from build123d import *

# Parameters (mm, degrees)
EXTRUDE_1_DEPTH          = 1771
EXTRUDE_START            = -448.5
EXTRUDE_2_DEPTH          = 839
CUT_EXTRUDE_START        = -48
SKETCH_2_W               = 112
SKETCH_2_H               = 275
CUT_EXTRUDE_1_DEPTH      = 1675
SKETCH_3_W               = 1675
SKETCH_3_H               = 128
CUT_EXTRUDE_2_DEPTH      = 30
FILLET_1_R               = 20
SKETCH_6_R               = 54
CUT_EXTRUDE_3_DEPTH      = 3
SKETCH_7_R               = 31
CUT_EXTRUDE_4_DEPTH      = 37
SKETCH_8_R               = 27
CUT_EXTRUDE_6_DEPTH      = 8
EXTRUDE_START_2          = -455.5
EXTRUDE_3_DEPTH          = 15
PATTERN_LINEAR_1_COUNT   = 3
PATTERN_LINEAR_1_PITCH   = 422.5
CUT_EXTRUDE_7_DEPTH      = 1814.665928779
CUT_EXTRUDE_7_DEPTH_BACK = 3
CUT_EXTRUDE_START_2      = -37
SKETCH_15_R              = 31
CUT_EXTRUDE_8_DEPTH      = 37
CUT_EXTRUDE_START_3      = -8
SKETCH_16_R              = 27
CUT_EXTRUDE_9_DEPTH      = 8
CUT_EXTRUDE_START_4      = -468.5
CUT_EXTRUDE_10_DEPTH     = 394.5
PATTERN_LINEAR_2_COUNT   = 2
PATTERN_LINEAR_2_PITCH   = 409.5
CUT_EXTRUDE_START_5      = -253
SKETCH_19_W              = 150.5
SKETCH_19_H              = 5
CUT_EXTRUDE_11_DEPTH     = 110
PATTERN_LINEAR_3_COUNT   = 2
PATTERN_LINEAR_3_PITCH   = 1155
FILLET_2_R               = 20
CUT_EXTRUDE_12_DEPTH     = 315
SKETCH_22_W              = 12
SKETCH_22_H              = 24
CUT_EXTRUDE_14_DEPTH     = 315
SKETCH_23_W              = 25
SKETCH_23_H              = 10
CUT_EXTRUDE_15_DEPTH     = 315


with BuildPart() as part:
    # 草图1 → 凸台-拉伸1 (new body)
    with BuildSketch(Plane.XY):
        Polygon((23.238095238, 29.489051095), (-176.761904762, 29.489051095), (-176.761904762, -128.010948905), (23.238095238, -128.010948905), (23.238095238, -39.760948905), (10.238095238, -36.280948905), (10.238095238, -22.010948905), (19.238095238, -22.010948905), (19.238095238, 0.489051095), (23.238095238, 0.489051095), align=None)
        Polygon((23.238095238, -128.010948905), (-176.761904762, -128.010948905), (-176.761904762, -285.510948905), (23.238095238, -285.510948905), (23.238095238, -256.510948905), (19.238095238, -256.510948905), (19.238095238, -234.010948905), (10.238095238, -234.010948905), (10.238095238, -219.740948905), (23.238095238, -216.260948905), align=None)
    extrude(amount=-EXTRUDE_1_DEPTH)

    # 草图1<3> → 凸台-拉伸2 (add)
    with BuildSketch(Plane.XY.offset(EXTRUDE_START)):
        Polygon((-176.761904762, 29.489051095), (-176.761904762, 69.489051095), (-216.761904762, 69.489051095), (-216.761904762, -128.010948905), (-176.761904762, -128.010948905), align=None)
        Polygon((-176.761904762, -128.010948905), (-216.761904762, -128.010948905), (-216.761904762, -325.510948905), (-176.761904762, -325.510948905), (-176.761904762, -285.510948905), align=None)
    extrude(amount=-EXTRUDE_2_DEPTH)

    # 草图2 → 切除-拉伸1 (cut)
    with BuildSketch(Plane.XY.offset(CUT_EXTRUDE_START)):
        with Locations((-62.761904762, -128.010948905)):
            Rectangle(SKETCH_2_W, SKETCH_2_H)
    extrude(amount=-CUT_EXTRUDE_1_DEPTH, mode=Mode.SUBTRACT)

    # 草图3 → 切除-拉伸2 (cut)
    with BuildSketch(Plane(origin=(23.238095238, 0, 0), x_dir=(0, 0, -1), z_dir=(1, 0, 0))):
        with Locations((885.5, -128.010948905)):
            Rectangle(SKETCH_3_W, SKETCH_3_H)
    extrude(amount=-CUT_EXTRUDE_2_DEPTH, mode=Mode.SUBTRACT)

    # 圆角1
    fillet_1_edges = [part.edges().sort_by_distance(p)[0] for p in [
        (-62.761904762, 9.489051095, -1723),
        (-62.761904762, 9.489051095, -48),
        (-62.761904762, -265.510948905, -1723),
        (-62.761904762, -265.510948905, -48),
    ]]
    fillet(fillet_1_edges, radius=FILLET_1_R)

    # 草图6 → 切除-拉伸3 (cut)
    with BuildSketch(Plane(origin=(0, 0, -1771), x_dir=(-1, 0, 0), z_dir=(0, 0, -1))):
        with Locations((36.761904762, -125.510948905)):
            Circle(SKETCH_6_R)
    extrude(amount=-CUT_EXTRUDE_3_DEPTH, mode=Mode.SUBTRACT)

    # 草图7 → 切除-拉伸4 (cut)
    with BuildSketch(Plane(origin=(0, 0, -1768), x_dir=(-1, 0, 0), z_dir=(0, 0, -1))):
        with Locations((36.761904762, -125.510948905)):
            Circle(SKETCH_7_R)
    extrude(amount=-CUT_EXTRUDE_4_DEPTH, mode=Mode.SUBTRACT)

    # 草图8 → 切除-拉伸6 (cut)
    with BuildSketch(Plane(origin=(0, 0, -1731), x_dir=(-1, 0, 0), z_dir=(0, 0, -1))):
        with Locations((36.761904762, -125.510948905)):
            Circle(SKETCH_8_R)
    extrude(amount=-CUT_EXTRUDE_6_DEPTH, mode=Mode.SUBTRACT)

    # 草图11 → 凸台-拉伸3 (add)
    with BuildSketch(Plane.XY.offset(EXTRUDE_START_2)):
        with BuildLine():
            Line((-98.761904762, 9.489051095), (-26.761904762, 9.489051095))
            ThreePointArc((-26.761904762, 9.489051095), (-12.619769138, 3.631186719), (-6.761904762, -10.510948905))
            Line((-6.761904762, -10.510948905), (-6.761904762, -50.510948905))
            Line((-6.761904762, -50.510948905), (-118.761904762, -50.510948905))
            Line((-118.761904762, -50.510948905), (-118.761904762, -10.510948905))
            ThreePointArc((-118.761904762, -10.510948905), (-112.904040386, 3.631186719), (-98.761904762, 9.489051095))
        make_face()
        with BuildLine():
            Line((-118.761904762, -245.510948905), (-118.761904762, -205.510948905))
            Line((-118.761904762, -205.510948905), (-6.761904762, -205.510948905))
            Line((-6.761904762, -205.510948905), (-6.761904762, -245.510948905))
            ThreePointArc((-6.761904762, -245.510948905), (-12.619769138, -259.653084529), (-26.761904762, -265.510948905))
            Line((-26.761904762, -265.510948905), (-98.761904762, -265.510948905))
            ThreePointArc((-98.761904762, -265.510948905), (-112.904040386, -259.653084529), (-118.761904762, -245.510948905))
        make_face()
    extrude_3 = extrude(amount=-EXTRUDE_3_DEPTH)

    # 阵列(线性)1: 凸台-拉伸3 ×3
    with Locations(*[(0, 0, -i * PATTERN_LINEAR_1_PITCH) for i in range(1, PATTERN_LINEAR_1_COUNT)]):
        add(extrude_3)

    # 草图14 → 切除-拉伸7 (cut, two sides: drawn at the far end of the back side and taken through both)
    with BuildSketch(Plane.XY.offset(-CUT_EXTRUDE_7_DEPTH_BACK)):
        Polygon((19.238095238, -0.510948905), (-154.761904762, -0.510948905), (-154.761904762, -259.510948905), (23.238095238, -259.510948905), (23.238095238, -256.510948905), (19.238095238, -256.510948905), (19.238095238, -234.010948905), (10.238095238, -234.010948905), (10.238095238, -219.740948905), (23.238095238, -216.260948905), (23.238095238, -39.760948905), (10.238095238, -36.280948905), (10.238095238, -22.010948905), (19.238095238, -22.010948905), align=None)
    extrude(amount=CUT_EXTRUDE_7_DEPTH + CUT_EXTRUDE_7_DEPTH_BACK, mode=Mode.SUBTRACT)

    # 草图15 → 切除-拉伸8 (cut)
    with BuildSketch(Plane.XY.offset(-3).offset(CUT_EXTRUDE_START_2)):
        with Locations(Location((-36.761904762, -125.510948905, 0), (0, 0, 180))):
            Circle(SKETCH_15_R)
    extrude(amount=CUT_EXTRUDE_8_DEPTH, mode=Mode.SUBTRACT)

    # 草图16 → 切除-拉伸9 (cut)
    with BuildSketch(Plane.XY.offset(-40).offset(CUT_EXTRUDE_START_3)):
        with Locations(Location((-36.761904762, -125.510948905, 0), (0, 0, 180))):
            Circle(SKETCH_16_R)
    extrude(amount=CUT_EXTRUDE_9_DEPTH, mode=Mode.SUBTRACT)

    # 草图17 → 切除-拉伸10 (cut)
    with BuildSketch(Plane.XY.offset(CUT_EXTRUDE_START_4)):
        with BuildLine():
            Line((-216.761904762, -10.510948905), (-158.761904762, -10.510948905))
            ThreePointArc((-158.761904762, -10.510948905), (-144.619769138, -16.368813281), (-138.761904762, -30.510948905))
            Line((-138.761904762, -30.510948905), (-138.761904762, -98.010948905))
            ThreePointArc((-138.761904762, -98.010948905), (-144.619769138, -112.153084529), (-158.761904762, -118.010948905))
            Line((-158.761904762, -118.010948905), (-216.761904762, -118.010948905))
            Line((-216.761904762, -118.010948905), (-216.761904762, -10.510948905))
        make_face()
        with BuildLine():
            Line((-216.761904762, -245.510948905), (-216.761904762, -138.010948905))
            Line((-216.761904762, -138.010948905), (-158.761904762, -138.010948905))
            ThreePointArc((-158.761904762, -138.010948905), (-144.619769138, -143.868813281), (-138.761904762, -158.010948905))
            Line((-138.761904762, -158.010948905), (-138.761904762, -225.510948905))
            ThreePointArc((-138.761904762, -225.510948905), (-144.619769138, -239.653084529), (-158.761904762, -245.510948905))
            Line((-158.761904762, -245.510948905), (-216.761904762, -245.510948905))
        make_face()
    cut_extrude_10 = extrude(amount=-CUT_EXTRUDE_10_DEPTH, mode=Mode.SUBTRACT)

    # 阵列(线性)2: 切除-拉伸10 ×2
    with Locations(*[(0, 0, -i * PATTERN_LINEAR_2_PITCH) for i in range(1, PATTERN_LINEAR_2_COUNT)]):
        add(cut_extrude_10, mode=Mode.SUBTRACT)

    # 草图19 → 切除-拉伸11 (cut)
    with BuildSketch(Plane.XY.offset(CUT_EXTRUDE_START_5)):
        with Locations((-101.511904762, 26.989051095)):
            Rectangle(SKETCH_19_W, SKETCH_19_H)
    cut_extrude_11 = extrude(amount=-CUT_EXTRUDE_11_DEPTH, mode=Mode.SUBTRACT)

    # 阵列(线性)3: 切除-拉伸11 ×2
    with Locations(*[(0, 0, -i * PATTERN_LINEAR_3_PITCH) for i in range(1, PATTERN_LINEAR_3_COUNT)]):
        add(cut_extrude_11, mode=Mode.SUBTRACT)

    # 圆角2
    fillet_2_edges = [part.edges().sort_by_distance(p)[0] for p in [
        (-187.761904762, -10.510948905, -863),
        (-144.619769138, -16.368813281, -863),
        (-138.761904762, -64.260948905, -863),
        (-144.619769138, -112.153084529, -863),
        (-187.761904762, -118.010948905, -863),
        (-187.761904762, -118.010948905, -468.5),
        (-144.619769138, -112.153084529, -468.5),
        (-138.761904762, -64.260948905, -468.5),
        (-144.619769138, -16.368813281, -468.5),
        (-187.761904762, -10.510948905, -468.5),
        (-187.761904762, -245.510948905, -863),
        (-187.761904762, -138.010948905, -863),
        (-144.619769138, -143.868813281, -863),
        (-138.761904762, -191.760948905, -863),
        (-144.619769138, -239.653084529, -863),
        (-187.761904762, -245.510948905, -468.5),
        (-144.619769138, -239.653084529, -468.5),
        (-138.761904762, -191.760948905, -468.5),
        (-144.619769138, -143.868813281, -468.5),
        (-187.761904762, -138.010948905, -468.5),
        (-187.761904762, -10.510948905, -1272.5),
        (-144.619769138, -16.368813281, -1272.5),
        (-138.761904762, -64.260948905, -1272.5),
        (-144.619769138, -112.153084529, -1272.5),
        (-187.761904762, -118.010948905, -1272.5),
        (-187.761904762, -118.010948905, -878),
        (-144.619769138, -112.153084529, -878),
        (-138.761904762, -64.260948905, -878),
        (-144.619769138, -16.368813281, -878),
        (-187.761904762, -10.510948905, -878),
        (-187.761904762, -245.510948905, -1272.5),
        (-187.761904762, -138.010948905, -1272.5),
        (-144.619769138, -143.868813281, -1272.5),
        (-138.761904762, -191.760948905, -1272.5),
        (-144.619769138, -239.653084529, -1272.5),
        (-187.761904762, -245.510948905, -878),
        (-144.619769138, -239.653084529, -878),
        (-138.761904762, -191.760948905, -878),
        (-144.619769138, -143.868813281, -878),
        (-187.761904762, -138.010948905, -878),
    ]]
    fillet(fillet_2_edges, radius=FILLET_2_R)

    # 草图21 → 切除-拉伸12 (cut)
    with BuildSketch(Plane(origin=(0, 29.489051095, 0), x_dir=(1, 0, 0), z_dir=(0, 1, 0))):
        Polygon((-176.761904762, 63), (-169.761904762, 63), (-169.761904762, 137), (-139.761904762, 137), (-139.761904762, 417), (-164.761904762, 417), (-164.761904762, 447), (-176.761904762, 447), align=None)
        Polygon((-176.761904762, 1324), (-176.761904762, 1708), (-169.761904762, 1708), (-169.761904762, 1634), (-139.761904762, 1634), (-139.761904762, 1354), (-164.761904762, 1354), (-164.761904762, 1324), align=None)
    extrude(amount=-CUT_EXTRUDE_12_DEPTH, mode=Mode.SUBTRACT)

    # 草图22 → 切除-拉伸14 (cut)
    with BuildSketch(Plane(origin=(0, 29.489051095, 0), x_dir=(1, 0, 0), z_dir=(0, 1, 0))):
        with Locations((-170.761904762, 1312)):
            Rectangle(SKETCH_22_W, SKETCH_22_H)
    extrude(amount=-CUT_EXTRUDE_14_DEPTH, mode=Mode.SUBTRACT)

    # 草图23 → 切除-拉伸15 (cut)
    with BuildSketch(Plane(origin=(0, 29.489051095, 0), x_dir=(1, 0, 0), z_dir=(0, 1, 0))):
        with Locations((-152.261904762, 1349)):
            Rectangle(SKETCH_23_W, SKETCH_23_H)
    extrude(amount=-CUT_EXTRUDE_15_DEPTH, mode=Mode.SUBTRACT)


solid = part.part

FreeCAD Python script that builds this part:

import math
import FreeCAD as App
import Part
import Sketcher

V = App.Vector


def edges_at(feature, points):
    """Names of the edges that pass closest to the given points."""
    edges = feature.Shape.Edges
    near = lambda p: min(range(len(edges)), key=lambda i: edges[i].distToShape(Part.Vertex(*p))[0])
    return sorted({f"Edge{near(p) + 1}" for p in points})


def add_polygon(sketch, points):
    """Adds a closed chain of lines whose ends are joined by coincident constraints."""
    first, n = sketch.GeometryCount, len(points)
    for a, b in zip(points, points[1:] + points[:1]):
        sketch.addGeometry(Part.LineSegment(App.Vector(*a, 0), App.Vector(*b, 0)), False)
    for i in range(n):
        sketch.addConstraint(Sketcher.Constraint("Coincident", first + i, 2, first + (i + 1) % n, 1))

doc = App.newDocument("Part")
params = doc.addObject("Spreadsheet::Sheet", "Params")
for row, (alias, value) in enumerate([
    ("sketch1_width", "200 mm"),
    ("sketch1_width2", "4 mm"),
    ("sketch1_width3", "9 mm"),
    ("sketch1_height", "315 mm"),
    ("sketch1_height2", "29 mm"),
    ("pad1_length", "1771 mm"),
    ("sketch2_width", "40 mm"),
    ("sketch2_height", "395 mm"),
    ("pad2_length", "839 mm"),
    ("sketch3_width", "112 mm"),
    ("sketch3_height", "275 mm"),
    ("pocket1_length", "1675 mm"),
    ("sketch4_width", "128 mm"),
    ("sketch4_height", "1675 mm"),
    ("pocket2_length", "30 mm"),
    ("fillet_radius", "20 mm"),
    ("sketch5_diameter", "108 mm"),
    ("pocket3_length", "3 mm"),
    ("sketch6_diameter", "62 mm"),
    ("pocket4_length", "37 mm"),
    ("sketch7_diameter", "54 mm"),
    ("pocket5_length", "8 mm"),
    ("sketch8_radius", "20 mm"),
    ("sketch8_width", "72 mm"),
    ("sketch8_height", "40 mm"),
    ("pad3_length", "15 mm"),
    ("linearpattern_pitch", "422.5 mm"),
    ("sketch9_width", "174 mm"),
    ("sketch9_width2", "178 mm"),
    ("sketch9_width3", "9 mm"),
    ("sketch9_height", "259 mm"),
    ("sketch9_height2", "3 mm"),
    ("pocket6_length", "1814.665929 mm"),
    ("pocket6_length2", "3 mm"),
    ("sketch10_diameter", "62 mm"),
    ("pocket7_length", "37 mm"),
    ("sketch11_diameter", "54 mm"),
    ("pocket8_length", "8 mm"),
    ("sketch12_radius", "20 mm"),
    ("sketch12_width", "58 mm"),
    ("sketch12_height", "107.5 mm"),
    ("pocket9_length", "394.5 mm"),
    ("linearpattern2_pitch", "409.5 mm"),
    ("sketch13_height", "5 mm"),
    ("sketch13_width", "150.5 mm"),
    ("pocket10_length", "110 mm"),
    ("linearpattern3_pitch", "1155 mm"),
    ("fillet2_radius", "20 mm"),
    ("sketch14_width", "7 mm"),
    ("sketch14_width2", "30 mm"),
    ("sketch14_width3", "25 mm"),
    ("sketch14_height", "74 mm"),
    ("sketch14_height2", "280 mm"),
    ("pocket11_length", "315 mm"),
    ("sketch15_width", "12 mm"),
    ("sketch15_height", "24 mm"),
    ("pocket12_length", "315 mm"),
    ("sketch16_width", "25 mm"),
    ("sketch16_height", "10 mm"),
    ("pocket13_length", "315 mm"),
], start=1):
    params.set(f"A{row}", alias)
    params.set(f"B{row}", "=" + value)
    params.setAlias(f"B{row}", alias)

body = doc.addObject("PartDesign::Body", "Body")

# Sketch on XY plane
sketch1 = body.newObject("Sketcher::SketchObject", "Sketch")
sketch1.AttachmentSupport = (doc.getObject("XY_Plane"), [""])
sketch1.MapMode = "FlatFace"
add_polygon(sketch1, [(23.2, 29.5), (-176.8, 29.5), (-176.8, -285.5), (23.2, -285.5), (23.2, -256.5), (19.2, -256.5), (19.2, -234), (10.2, -234), (10.2, -219.7), (23.2, -216.3), (23.2, -39.8), (10.2, -36.3), (10.2, -22), (19.2, -22), (19.2, 0.5), (23.2, 0.5)])  # lines 0-15
sketch1.addConstraint([
    Sketcher.Constraint("Horizontal", 0),
    Sketcher.Constraint("Vertical", 1),
    Sketcher.Constraint("Horizontal", 2),
    Sketcher.Constraint("Vertical", 3),
    Sketcher.Constraint("Horizontal", 4),
    Sketcher.Constraint("Vertical", 5),
    Sketcher.Constraint("Horizontal", 6),
    Sketcher.Constraint("Vertical", 7),
    Sketcher.Constraint("Vertical", 9),
    Sketcher.Constraint("Vertical", 11),
    Sketcher.Constraint("Horizontal", 12),
    Sketcher.Constraint("Vertical", 13),
    Sketcher.Constraint("Horizontal", 14),
    Sketcher.Constraint("Vertical", 15),
    Sketcher.Constraint("Vertical", 3, 2, 8, 2),
    Sketcher.Constraint("Vertical", 7, 2, 10, 2),
    Sketcher.Constraint("Vertical", 5, 2, 12, 2),
    Sketcher.Constraint("Vertical", 9, 2, 14, 2),
    Sketcher.Constraint("Equal", 7, 11),
    Sketcher.Constraint("Equal", 5, 13),
    Sketcher.Constraint("Equal", 3, 15),
    Sketcher.Constraint("Equal", 8, 10),
    Sketcher.Constraint("DistanceX", 0, 2, 0, 1, 200.0),
    Sketcher.Constraint("DistanceX", 4, 2, 4, 1, 4.0),
    Sketcher.Constraint("DistanceX", 6, 2, 6, 1, 9.0),
    Sketcher.Constraint("DistanceY", 1, 2, 1, 1, 315.0),
    Sketcher.Constraint("DistanceY", 3, 1, 3, 2, 29.0),
    Sketcher.Constraint("DistanceY", 5, 1, 5, 2, 22.5),
    Sketcher.Constraint("DistanceY", 9, 1, 9, 2, 176.5),
    Sketcher.Constraint("DistanceY", 7, 1, 7, 2, 14.27),
    Sketcher.Constraint("DistanceY", -1, 1, 0, 2, 29.489051),
    Sketcher.Constraint("DistanceX", 0, 2, -1, 1, 176.761905),
])
sketch1.setExpression("Constraints[38]", "Params.sketch1_width")
sketch1.setExpression("Constraints[39]", "Params.sketch1_width2")
sketch1.setExpression("Constraints[40]", "Params.sketch1_width3")
sketch1.setExpression("Constraints[41]", "Params.sketch1_height")
sketch1.setExpression("Constraints[42]", "Params.sketch1_height2")
pad1 = body.newObject("PartDesign::Pad", "Pad")
pad1.Profile = sketch1
pad1.setExpression("Length", "Params.pad1_length")
pad1.Reversed = True

# Sketch on XY plane
sketch2 = body.newObject("Sketcher::SketchObject", "Sketch001")
sketch2.AttachmentSupport = (doc.getObject("XY_Plane"), [""])
sketch2.MapMode = "FlatFace"
sketch2.AttachmentOffset = App.Placement(V(0, 0, -448.5), App.Rotation())
add_polygon(sketch2, [(-177, 69), (-217, 69), (-217, -326), (-177, -326)])  # lines 0-3
sketch2.addConstraint([
    Sketcher.Constraint("Horizontal", 0),
    Sketcher.Constraint("Vertical", 1),
    Sketcher.Constraint("Horizontal", 2),
    Sketcher.Constraint("Vertical", 3),
    Sketcher.Constraint("DistanceX", 0, 2, 0, 1, 40.0),
    Sketcher.Constraint("DistanceY", 1, 2, 1, 1, 395.0),
    Sketcher.Constraint("DistanceY", -1, 1, 0, 2, 69.489051),
    Sketcher.Constraint("DistanceX", 0, 2, -1, 1, 216.761905),
])
sketch2.setExpression("Constraints[8]", "Params.sketch2_width")
sketch2.setExpression("Constraints[9]", "Params.sketch2_height")
pad2 = body.newObject("PartDesign::Pad", "Pad001")
pad2.Profile = sketch2
pad2.setExpression("Length", "Params.pad2_length")
pad2.Reversed = True

# Sketch on XY plane
sketch3 = body.newObject("Sketcher::SketchObject", "Sketch002")
sketch3.AttachmentSupport = (doc.getObject("XY_Plane"), [""])
sketch3.MapMode = "FlatFace"
sketch3.AttachmentOffset = App.Placement(V(0, 0, -48), App.Rotation())
add_polygon(sketch3, [(-119, 9), (-119, -266), (-7, -266), (-7, 9)])  # lines 0-3
sketch3.addConstraint([
    Sketcher.Constraint("Vertical", 0),
    Sketcher.Constraint("Horizontal", 1),
    Sketcher.Constraint("Vertical", 2),
    Sketcher.Constraint("Horizontal", 3),
    Sketcher.Constraint("DistanceX", 1, 1, 1, 2, 112.0),
    Sketcher.Constraint("DistanceY", 0, 2, 0, 1, 275.0),
    Sketcher.Constraint("DistanceY", 0, 2, -1, 1, 265.510949),
    Sketcher.Constraint("DistanceX", 0, 2, -1, 1, 118.761905),
])
sketch3.setExpression("Constraints[8]", "Params.sketch3_width")
sketch3.setExpression("Constraints[9]", "Params.sketch3_height")
pocket1 = body.newObject("PartDesign::Pocket", "Pocket")
pocket1.Profile = sketch3
pocket1.setExpression("Length", "Params.pocket1_length")

# Sketch on YZ plane
sketch4 = body.newObject("Sketcher::SketchObject", "Sketch003")
sketch4.AttachmentSupport = (doc.getObject("YZ_Plane"), [""])
sketch4.MapMode = "FlatFace"
sketch4.AttachmentOffset = App.Placement(V(0, 0, 23.238095), App.Rotation())
add_polygon(sketch4, [(-64, -48), (-192, -48), (-192, -1723), (-64, -1723)])  # lines 0-3
sketch4.addConstraint([
    Sketcher.Constraint("Horizontal", 0),
    Sketcher.Constraint("Vertical", 1),
    Sketcher.Constraint("Horizontal", 2),
    Sketcher.Constraint("Vertical", 3),
    Sketcher.Constraint("DistanceX", 0, 2, 0, 1, 128.0),
    Sketcher.Constraint("DistanceY", 1, 2, 1, 1, 1675.0),
    Sketcher.Constraint("DistanceY", 0, 2, -1, 1, 48.0),
    Sketcher.Constraint("DistanceX", 0, 2, -1, 1, 192.010949),
])
sketch4.setExpression("Constraints[8]", "Params.sketch4_width")
sketch4.setExpression("Constraints[9]", "Params.sketch4_height")
pocket2 = body.newObject("PartDesign::Pocket", "Pocket001")
pocket2.Profile = sketch4
pocket2.setExpression("Length", "Params.pocket2_length")
doc.recompute()

fillet = body.newObject("PartDesign::Fillet", "Fillet")
fillet.Base = (pocket2, edges_at(pocket2, [
    (-62.762, 9.489, -1723),
    (-62.762, 9.489, -48),
    (-62.762, -265.511, -1723),
    (-62.762, -265.511, -48),
]))
fillet.setExpression("Radius", "Params.fillet_radius")

# Sketch on XY plane
sketch5 = body.newObject("Sketcher::SketchObject", "Sketch004")
sketch5.AttachmentSupport = (doc.getObject("XY_Plane"), [""])
sketch5.MapMode = "FlatFace"
sketch5.AttachmentOffset = App.Placement(V(0, 0, -1771), App.Rotation())
sketch5.addGeometry(Part.Circle(V(-37, -126, 0), V(0, 0, 1), 54), False)
sketch5.addConstraint([
    Sketcher.Constraint("Diameter", 0, 108.0),
    Sketcher.Constraint("DistanceY", 0, 3, -1, 1, 125.510949),
    Sketcher.Constraint("DistanceX", 0, 3, -1, 1, 36.761905),
])
sketch5.setExpression("Constraints[0]", "Params.sketch5_diameter")
pocket3 = body.newObject("PartDesign::Pocket", "Pocket002")
pocket3.Profile = sketch5
pocket3.setExpression("Length", "Params.pocket3_length")
pocket3.Reversed = True

# Sketch on XY plane
sketch6 = body.newObject("Sketcher::SketchObject", "Sketch005")
sketch6.AttachmentSupport = (doc.getObject("XY_Plane"), [""])
sketch6.MapMode = "FlatFace"
sketch6.AttachmentOffset = App.Placement(V(0, 0, -1768), App.Rotation())
sketch6.addGeometry(Part.Circle(V(-37, -126, 0), V(0, 0, 1), 31), False)
sketch6.addConstraint([
    Sketcher.Constraint("Diameter", 0, 62.0),
    Sketcher.Constraint("DistanceY", 0, 3, -1, 1, 125.510949),
    Sketcher.Constraint("DistanceX", 0, 3, -1, 1, 36.761905),
])
sketch6.setExpression("Constraints[0]", "Params.sketch6_diameter")
pocket4 = body.newObject("PartDesign::Pocket", "Pocket003")
pocket4.Profile = sketch6
pocket4.setExpression("Length", "Params.pocket4_length")
pocket4.Reversed = True

# Sketch on XY plane
sketch7 = body.newObject("Sketcher::SketchObject", "Sketch006")
sketch7.AttachmentSupport = (doc.getObject("XY_Plane"), [""])
sketch7.MapMode = "FlatFace"
sketch7.AttachmentOffset = App.Placement(V(0, 0, -1731), App.Rotation())
sketch7.addGeometry(Part.Circle(V(-37, -126, 0), V(0, 0, 1), 27), False)
sketch7.addConstraint([
    Sketcher.Constraint("Diameter", 0, 54.0),
    Sketcher.Constraint("DistanceY", 0, 3, -1, 1, 125.510949),
    Sketcher.Constraint("DistanceX", 0, 3, -1, 1, 36.761905),
])
sketch7.setExpression("Constraints[0]", "Params.sketch7_diameter")
pocket5 = body.newObject("PartDesign::Pocket", "Pocket004")
pocket5.Profile = sketch7
pocket5.setExpression("Length", "Params.pocket5_length")
pocket5.Reversed = True

# Sketch on XY plane
sketch8 = body.newObject("Sketcher::SketchObject", "Sketch007")
sketch8.AttachmentSupport = (doc.getObject("XY_Plane"), [""])
sketch8.MapMode = "FlatFace"
sketch8.AttachmentOffset = App.Placement(V(0, 0, -455.5), App.Rotation())
sketch8.addGeometry([
    Part.LineSegment(V(-27, 9, 0), V(-99, 9, 0)),  # 0
    Part.ArcOfCircle(Part.Circle(V(-99, -11, 0), V(0, 0, 1), 20), math.radians(90), math.radians(180)),  # 1
    Part.LineSegment(V(-119, -11, 0), V(-119, -51, 0)),  # 2
    Part.LineSegment(V(-119, -51, 0), V(-7, -51, 0)),  # 3
    Part.LineSegment(V(-7, -51, 0), V(-7, -11, 0)),  # 4
    Part.ArcOfCircle(Part.Circle(V(-27, -11, 0), V(0, 0, 1), 20), math.radians(0), math.radians(90)),  # 5
    Part.LineSegment(V(-119, -206, 0), V(-119, -246, 0)),  # 6
    Part.ArcOfCircle(Part.Circle(V(-99, -246, 0), V(0, 0, 1), 20), math.radians(180), math.radians(270)),  # 7
    Part.LineSegment(V(-99, -266, 0), V(-27, -266, 0)),  # 8
    Part.ArcOfCircle(Part.Circle(V(-27, -246, 0), V(0, 0, 1), 20), math.radians(-90), math.radians(0)),  # 9
    Part.LineSegment(V(-7, -246, 0), V(-7, -206, 0)),  # 10
    Part.LineSegment(V(-7, -206, 0), V(-119, -206, 0)),  # 11
], False)
sketch8.addConstraint([
    Sketcher.Constraint("Tangent", 0, 2, 1, 1),
    Sketcher.Constraint("Tangent", 1, 2, 2, 1),
    Sketcher.Constraint("Coincident", 2, 2, 3, 1),
    Sketcher.Constraint("Coincident", 3, 2, 4, 1),
    Sketcher.Constraint("Tangent", 4, 2, 5, 1),
    Sketcher.Constraint("Tangent", 5, 2, 0, 1),
    Sketcher.Constraint("Tangent", 6, 2, 7, 1),
    Sketcher.Constraint("Tangent", 7, 2, 8, 1),
    Sketcher.Constraint("Tangent", 8, 2, 9, 1),
    Sketcher.Constraint("Tangent", 9, 2, 10, 1),
    Sketcher.Constraint("Coincident", 10, 2, 11, 1),
    Sketcher.Constraint("Coincident", 11, 2, 6, 1),
    Sketcher.Constraint("Horizontal", 0),
    Sketcher.Constraint("Vertical", 2),
    Sketcher.Constraint("Horizontal", 3),
    Sketcher.Constraint("Vertical", 4),
    Sketcher.Constraint("Vertical", 6),
    Sketcher.Constraint("Horizontal", 8),
    Sketcher.Constraint("Vertical", 10),
    Sketcher.Constraint("Horizontal", 11),
    Sketcher.Constraint("Equal", 1, 5),
    Sketcher.Constraint("Equal", 5, 7),
    Sketcher.Constraint("Equal", 7, 9),
    Sketcher.Constraint("Vertical", 1, 3, 7, 3),
    Sketcher.Constraint("Vertical", 5, 3, 9, 3),
    Sketcher.Constraint("Equal", 4, 6),
    Sketcher.Constraint("Radius", 1, 20.0),
    Sketcher.Constraint("DistanceX", 0, 2, 0, 1, 72.0),
    Sketcher.Constraint("DistanceY", 2, 2, 2, 1, 40.0),
    Sketcher.Constraint("DistanceY", 7, 3, 1, 3, 235.0),
    Sketcher.Constraint("DistanceY", 1, 3, -1, 1, 10.510949),
    Sketcher.Constraint("DistanceX", 1, 3, -1, 1, 98.761905),
])
sketch8.setExpression("Constraints[26]", "Params.sketch8_radius")
sketch8.setExpression("Constraints[27]", "Params.sketch8_width")
sketch8.setExpression("Constraints[28]", "Params.sketch8_height")
pad3 = body.newObject("PartDesign::Pad", "Pad002")
pad3.Profile = sketch8
pad3.setExpression("Length", "Params.pad3_length")
pad3.Reversed = True
doc.recompute()

linearpattern = body.newObject("PartDesign::LinearPattern", "LinearPattern")
linearpattern.Originals = [pad3]
linearpattern.Direction = (doc.getObject("Z_Axis"), [""])
linearpattern.Mode = "offset"
linearpattern.setExpression("Offset", "Params.linearpattern_pitch")
linearpattern.Occurrences = 3
linearpattern.Reversed = True
body.Tip = linearpattern

# Sketch on XY plane
sketch9 = body.newObject("Sketcher::SketchObject", "Sketch008")
sketch9.AttachmentSupport = (doc.getObject("XY_Plane"), [""])
sketch9.MapMode = "FlatFace"
add_polygon(sketch9, [(19.2, -0.5), (-154.8, -0.5), (-154.8, -259.5), (23.2, -259.5), (23.2, -256.5), (19.2, -256.5), (19.2, -234), (10.2, -234), (10.2, -219.7), (23.2, -216.3), (23.2, -39.8), (10.2, -36.3), (10.2, -22), (19.2, -22)])  # lines 0-13
sketch9.addConstraint([
    Sketcher.Constraint("Horizontal", 0),
    Sketcher.Constraint("Vertical", 1),
    Sketcher.Constraint("Horizontal", 2),
    Sketcher.Constraint("Vertical", 3),
    Sketcher.Constraint("Horizontal", 4),
    Sketcher.Constraint("Vertical", 5),
    Sketcher.Constraint("Horizontal", 6),
    Sketcher.Constraint("Vertical", 7),
    Sketcher.Constraint("Vertical", 9),
    Sketcher.Constraint("Vertical", 11),
    Sketcher.Constraint("Horizontal", 12),
    Sketcher.Constraint("Vertical", 13),
    Sketcher.Constraint("Vertical", 3, 2, 8, 2),
    Sketcher.Constraint("Vertical", 7, 2, 10, 2),
    Sketcher.Constraint("Vertical", 5, 2, 12, 2),
    Sketcher.Constraint("Equal", 7, 11),
    Sketcher.Constraint("Equal", 8, 10),
    Sketcher.Constraint("DistanceX", 0, 2, 0, 1, 174.0),
    Sketcher.Constraint("DistanceX", 2, 1, 2, 2, 178.0),
    Sketcher.Constraint("DistanceX", 6, 2, 6, 1, 9.0),
    Sketcher.Constraint("DistanceY", 1, 2, 1, 1, 259.0),
    Sketcher.Constraint("DistanceY", 3, 1, 3, 2, 3.0),
    Sketcher.Constraint("DistanceY", 5, 1, 5, 2, 22.5),
    Sketcher.Constraint("DistanceY", 9, 1, 9, 2, 176.5),
    Sketcher.Constraint("DistanceY", 13, 1, 13, 2, 21.5),
    Sketcher.Constraint("DistanceY", 7, 1, 7, 2, 14.27),
    Sketcher.Constraint("DistanceY", 0, 2, -1, 1, 0.510949),
    Sketcher.Constraint("DistanceX", 0, 2, -1, 1, 154.761905),
])
sketch9.setExpression("Constraints[31]", "Params.sketch9_width")
sketch9.setExpression("Constraints[32]", "Params.sketch9_width2")
sketch9.setExpression("Constraints[33]", "Params.sketch9_width3")
sketch9.setExpression("Constraints[34]", "Params.sketch9_height")
sketch9.setExpression("Constraints[35]", "Params.sketch9_height2")
pocket6 = body.newObject("PartDesign::Pocket", "Pocket005")
pocket6.Profile = sketch9
pocket6.Type = "TwoLengths"
pocket6.setExpression("Length", "Params.pocket6_length")
pocket6.setExpression("Length2", "Params.pocket6_length2")
pocket6.Reversed = True

# Sketch on XY plane
sketch10 = body.newObject("Sketcher::SketchObject", "Sketch009")
sketch10.AttachmentSupport = (doc.getObject("XY_Plane"), [""])
sketch10.MapMode = "FlatFace"
sketch10.AttachmentOffset = App.Placement(V(0, 0, -40), App.Rotation())
sketch10.addGeometry(Part.Circle(V(-37, -126, 0), V(0, 0, 1), 31), False)
sketch10.addConstraint([
    Sketcher.Constraint("Diameter", 0, 62.0),
    Sketcher.Constraint("DistanceY", 0, 3, -1, 1, 125.510949),
    Sketcher.Constraint("DistanceX", 0, 3, -1, 1, 36.761905),
])
sketch10.setExpression("Constraints[0]", "Params.sketch10_diameter")
pocket7 = body.newObject("PartDesign::Pocket", "Pocket006")
pocket7.Profile = sketch10
pocket7.setExpression("Length", "Params.pocket7_length")
pocket7.Reversed = True

# Sketch on XY plane
sketch11 = body.newObject("Sketcher::SketchObject", "Sketch010")
sketch11.AttachmentSupport = (doc.getObject("XY_Plane"), [""])
sketch11.MapMode = "FlatFace"
sketch11.AttachmentOffset = App.Placement(V(0, 0, -48), App.Rotation())
sketch11.addGeometry(Part.Circle(V(-37, -126, 0), V(0, 0, 1), 27), False)
sketch11.addConstraint([
    Sketcher.Constraint("Diameter", 0, 54.0),
    Sketcher.Constraint("DistanceY", 0, 3, -1, 1, 125.510949),
    Sketcher.Constraint("DistanceX", 0, 3, -1, 1, 36.761905),
])
sketch11.setExpression("Constraints[0]", "Params.sketch11_diameter")
pocket8 = body.newObject("PartDesign::Pocket", "Pocket007")
pocket8.Profile = sketch11
pocket8.setExpression("Length", "Params.pocket8_length")
pocket8.Reversed = True

# Sketch on XY plane
sketch12 = body.newObject("Sketcher::SketchObject", "Sketch011")
sketch12.AttachmentSupport = (doc.getObject("XY_Plane"), [""])
sketch12.MapMode = "FlatFace"
sketch12.AttachmentOffset = App.Placement(V(0, 0, -468.5), App.Rotation())
sketch12.addGeometry([
    Part.LineSegment(V(-159, -11, 0), V(-217, -11, 0)),  # 0
    Part.LineSegment(V(-217, -11, 0), V(-217, -118, 0)),  # 1
    Part.LineSegment(V(-217, -118, 0), V(-159, -118, 0)),  # 2
    Part.ArcOfCircle(Part.Circle(V(-159, -98, 0), V(0, 0, 1), 20), math.radians(-90), math.radians(0)),  # 3
    Part.LineSegment(V(-139, -98, 0), V(-139, -31, 0)),  # 4
    Part.ArcOfCircle(Part.Circle(V(-159, -31, 0), V(0, 0, 1), 20), math.radians(0), math.radians(90)),  # 5
    Part.LineSegment(V(-217, -138, 0), V(-217, -246, 0)),  # 6
    Part.LineSegment(V(-217, -246, 0), V(-159, -246, 0)),  # 7
    Part.ArcOfCircle(Part.Circle(V(-159, -226, 0), V(0, 0, 1), 20), math.radians(-90), math.radians(0)),  # 8
    Part.LineSegment(V(-139, -226, 0), V(-139, -158, 0)),  # 9
    Part.ArcOfCircle(Part.Circle(V(-159, -158, 0), V(0, 0, 1), 20), math.radians(0), math.radians(90)),  # 10
    Part.LineSegment(V(-159, -138, 0), V(-217, -138, 0)),  # 11
], False)
sketch12.addConstraint([
    Sketcher.Constraint("Coincident", 0, 2, 1, 1),
    Sketcher.Constraint("Coincident", 1, 2, 2, 1),
    Sketcher.Constraint("Tangent", 2, 2, 3, 1),
    Sketcher.Constraint("Tangent", 3, 2, 4, 1),
    Sketcher.Constraint("Tangent", 4, 2, 5, 1),
    Sketcher.Constraint("Tangent", 5, 2, 0, 1),
    Sketcher.Constraint("Coincident", 6, 2, 7, 1),
    Sketcher.Constraint("Tangent", 7, 2, 8, 1),
    Sketcher.Constraint("Tangent", 8, 2, 9, 1),
    Sketcher.Constraint("Tangent", 9, 2, 10, 1),
    Sketcher.Constraint("Tangent", 10, 2, 11, 1),
    Sketcher.Constraint("Coincident", 11, 2, 6, 1),
    Sketcher.Constraint("Horizontal", 0),
    Sketcher.Constraint("Vertical", 1),
    Sketcher.Constraint("Horizontal", 2),
    Sketcher.Constraint("Vertical", 4),
    Sketcher.Constraint("Vertical", 6),
    Sketcher.Constraint("Horizontal", 7),
    Sketcher.Constraint("Vertical", 9),
    Sketcher.Constraint("Horizontal", 11),
    Sketcher.Constraint("Equal", 3, 5),
    Sketcher.Constraint("Equal", 5, 8),
    Sketcher.Constraint("Equal", 8, 10),
    Sketcher.Constraint("Vertical", 5, 3, 8, 3),
    Sketcher.Constraint("Vertical", 1, 2, 6, 2),
    Sketcher.Constraint("Equal", 1, 6),
    Sketcher.Constraint("Radius", 3, 20.0),
    Sketcher.Constraint("DistanceX", 0, 2, 0, 1, 58.0),
    Sketcher.Constraint("DistanceY", 1, 2, 1, 1, 107.5),
    Sketcher.Constraint("DistanceY", 8, 3, 5, 3, 195.0),
    Sketcher.Constraint("DistanceY", 3, 3, -1, 1, 98.010949),
    Sketcher.Constraint("DistanceX", 3, 3, -1, 1, 158.761905),
])
sketch12.setExpression("Constraints[26]", "Params.sketch12_radius")
sketch12.setExpression("Constraints[27]", "Params.sketch12_width")
sketch12.setExpression("Constraints[28]", "Params.sketch12_height")
pocket9 = body.newObject("PartDesign::Pocket", "Pocket008")
pocket9.Profile = sketch12
pocket9.setExpression("Length", "Params.pocket9_length")
doc.recompute()

linearpattern2 = body.newObject("PartDesign::LinearPattern", "LinearPattern001")
linearpattern2.Originals = [pocket9]
linearpattern2.Direction = (doc.getObject("Z_Axis"), [""])
linearpattern2.Mode = "offset"
linearpattern2.setExpression("Offset", "Params.linearpattern2_pitch")
linearpattern2.Occurrences = 2
linearpattern2.Reversed = True
body.Tip = linearpattern2

# Sketch on XY plane
sketch13 = body.newObject("Sketcher::SketchObject", "Sketch012")
sketch13.AttachmentSupport = (doc.getObject("XY_Plane"), [""])
sketch13.MapMode = "FlatFace"
sketch13.AttachmentOffset = App.Placement(V(0, 0, -253), App.Rotation())
add_polygon(sketch13, [(-177, 29), (-177, 24), (-26, 24), (-26, 29)])  # lines 0-3
sketch13.addConstraint([
    Sketcher.Constraint("Vertical", 0),
    Sketcher.Constraint("Horizontal", 1),
    Sketcher.Constraint("Vertical", 2),
    Sketcher.Constraint("Horizontal", 3),
    Sketcher.Constraint("DistanceY", 0, 2, 0, 1, 5.0),
    Sketcher.Constraint("DistanceX", 1, 1, 1, 2, 150.5),
    Sketcher.Constraint("DistanceY", -1, 1, 0, 2, 24.489051),
    Sketcher.Constraint("DistanceX", 0, 2, -1, 1, 176.761905),
])
sketch13.setExpression("Constraints[8]", "Params.sketch13_height")
sketch13.setExpression("Constraints[9]", "Params.sketch13_width")
pocket10 = body.newObject("PartDesign::Pocket", "Pocket009")
pocket10.Profile = sketch13
pocket10.setExpression("Length", "Params.pocket10_length")
doc.recompute()

linearpattern3 = body.newObject("PartDesign::LinearPattern", "LinearPattern002")
linearpattern3.Originals = [pocket10]
linearpattern3.Direction = (doc.getObject("Z_Axis"), [""])
linearpattern3.Mode = "offset"
linearpattern3.setExpression("Offset", "Params.linearpattern3_pitch")
linearpattern3.Occurrences = 2
linearpattern3.Reversed = True
body.Tip = linearpattern3
doc.recompute()

fillet2 = body.newObject("PartDesign::Fillet", "Fillet001")
fillet2.Base = (linearpattern3, edges_at(linearpattern3, [
    (-187.762, -10.511, -863),
    (-144.62, -16.369, -863),
    (-138.762, -64.261, -863),
    (-144.62, -112.153, -863),
    (-187.762, -118.011, -863),
    (-187.762, -118.011, -468.5),
    (-144.62, -112.153, -468.5),
    (-138.762, -64.261, -468.5),
    (-144.62, -16.369, -468.5),
    (-187.762, -10.511, -468.5),
    (-187.762, -245.511, -863),
    (-187.762, -138.011, -863),
    (-144.62, -143.869, -863),
    (-138.762, -191.761, -863),
    (-144.62, -239.653, -863),
    (-187.762, -245.511, -468.5),
    (-144.62, -239.653, -468.5),
    (-138.762, -191.761, -468.5),
    (-144.62, -143.869, -468.5),
    (-187.762, -138.011, -468.5),
    (-187.762, -10.511, -1272.5),
    (-144.62, -16.369, -1272.5),
    (-138.762, -64.261, -1272.5),
    (-144.62, -112.153, -1272.5),
    (-187.762, -118.011, -1272.5),
    (-187.762, -118.011, -878),
    (-144.62, -112.153, -878),
    (-138.762, -64.261, -878),
    (-144.62, -16.369, -878),
    (-187.762, -10.511, -878),
    (-187.762, -245.511, -1272.5),
    (-187.762, -138.011, -1272.5),
    (-144.62, -143.869, -1272.5),
    (-138.762, -191.761, -1272.5),
    (-144.62, -239.653, -1272.5),
    (-187.762, -245.511, -878),
    (-144.62, -239.653, -878),
    (-138.762, -191.761, -878),
    (-144.62, -143.869, -878),
    (-187.762, -138.011, -878),
]))
fillet2.setExpression("Radius", "Params.fillet2_radius")

# Sketch on XZ plane
sketch14 = body.newObject("Sketcher::SketchObject", "Sketch013")
sketch14.AttachmentSupport = (doc.getObject("XZ_Plane"), [""])
sketch14.MapMode = "FlatFace"
sketch14.AttachmentOffset = App.Placement(V(0, 0, -29.489051), App.Rotation())
add_polygon(sketch14, [(-177, -63), (-170, -63), (-170, -137), (-140, -137), (-140, -417), (-165, -417), (-165, -447), (-177, -447)])  # lines 0-7
add_polygon(sketch14, [(-177, -1708), (-177, -1324), (-165, -1324), (-165, -1354), (-140, -1354), (-140, -1634), (-170, -1634), (-170, -1708)])  # lines 8-15
sketch14.addConstraint([
    Sketcher.Constraint("Horizontal", 0),
    Sketcher.Constraint("Vertical", 1),
    Sketcher.Constraint("Horizontal", 2),
    Sketcher.Constraint("Vertical", 3),
    Sketcher.Constraint("Horizontal", 4),
    Sketcher.Constraint("Vertical", 5),
    Sketcher.Constraint("Horizontal", 6),
    Sketcher.Constraint("Vertical", 7),
    Sketcher.Constraint("Vertical", 8),
    Sketcher.Constraint("Horizontal", 9),
    Sketcher.Constraint("Vertical", 10),
    Sketcher.Constraint("Horizontal", 11),
    Sketcher.Constraint("Vertical", 12),
    Sketcher.Constraint("Horizontal", 13),
    Sketcher.Constraint("Vertical", 14),
    Sketcher.Constraint("Horizontal", 15),
    Sketcher.Constraint("Vertical", 7, 2, 8, 2),
    Sketcher.Constraint("Vertical", 5, 2, 9, 2),
    Sketcher.Constraint("Vertical", 3, 2, 11, 2),
    Sketcher.Constraint("Vertical", 1, 2, 13, 2),
    Sketcher.Constraint("Equal", 13, 5),
    Sketcher.Constraint("Equal", 7, 8),
    Sketcher.Constraint("Equal", 5, 10),
    Sketcher.Constraint("Equal", 3, 12),
    Sketcher.Constraint("DistanceX", 0, 1, 0, 2, 7.0),
    Sketcher.Constraint("DistanceX", 2, 1, 2, 2, 30.0),
    Sketcher.Constraint("DistanceX", 4, 2, 4, 1, 25.0),
    Sketcher.Constraint("DistanceY", 1, 2, 1, 1, 74.0),
    Sketcher.Constraint("DistanceY", 3, 2, 3, 1, 280.0),
    Sketcher.Constraint("DistanceY", 0, 2, -1, 1, 63.0),
    Sketcher.Constraint("DistanceY", 8, 2, -1, 1, 1324.0),
    Sketcher.Constraint("DistanceX", 0, 2, -1, 1, 169.761905),
])
sketch14.setExpression("Constraints[40]", "Params.sketch14_width")
sketch14.setExpression("Constraints[41]", "Params.sketch14_width2")
sketch14.setExpression("Constraints[42]", "Params.sketch14_width3")
sketch14.setExpression("Constraints[43]", "Params.sketch14_height")
sketch14.setExpression("Constraints[44]", "Params.sketch14_height2")
pocket11 = body.newObject("PartDesign::Pocket", "Pocket010")
pocket11.Profile = sketch14
pocket11.setExpression("Length", "Params.pocket11_length")
pocket11.Reversed = True

# Sketch on XZ plane
sketch15 = body.newObject("Sketcher::SketchObject", "Sketch014")
sketch15.AttachmentSupport = (doc.getObject("XZ_Plane"), [""])
sketch15.MapMode = "FlatFace"
sketch15.AttachmentOffset = App.Placement(V(0, 0, -29.489051), App.Rotation())
add_polygon(sketch15, [(-177, -1324), (-177, -1300), (-165, -1300), (-165, -1324)])  # lines 0-3
sketch15.addConstraint([
    Sketcher.Constraint("Vertical", 0),
    Sketcher.Constraint("Horizontal", 1),
    Sketcher.Constraint("Vertical", 2),
    Sketcher.Constraint("Horizontal", 3),
    Sketcher.Constraint("DistanceX", 1, 1, 1, 2, 12.0),
    Sketcher.Constraint("DistanceY", 0, 1, 0, 2, 24.0),
    Sketcher.Constraint("DistanceY", 0, 2, -1, 1, 1300.0),
    Sketcher.Constraint("DistanceX", 0, 2, -1, 1, 176.761905),
])
sketch15.setExpression("Constraints[8]", "Params.sketch15_width")
sketch15.setExpression("Constraints[9]", "Params.sketch15_height")
pocket12 = body.newObject("PartDesign::Pocket", "Pocket011")
pocket12.Profile = sketch15
pocket12.setExpression("Length", "Params.pocket12_length")
pocket12.Reversed = True

# Sketch on XZ plane
sketch16 = body.newObject("Sketcher::SketchObject", "Sketch015")
sketch16.AttachmentSupport = (doc.getObject("XZ_Plane"), [""])
sketch16.MapMode = "FlatFace"
sketch16.AttachmentOffset = App.Placement(V(0, 0, -29.489051), App.Rotation())
add_polygon(sketch16, [(-165, -1354), (-165, -1344), (-140, -1344), (-140, -1354)])  # lines 0-3
sketch16.addConstraint([
    Sketcher.Constraint("Vertical", 0),
    Sketcher.Constraint("Horizontal", 1),
    Sketcher.Constraint("Vertical", 2),
    Sketcher.Constraint("Horizontal", 3),
    Sketcher.Constraint("DistanceX", 1, 1, 1, 2, 25.0),
    Sketcher.Constraint("DistanceY", 0, 1, 0, 2, 10.0),
    Sketcher.Constraint("DistanceY", 0, 2, -1, 1, 1344.0),
    Sketcher.Constraint("DistanceX", 0, 2, -1, 1, 164.761905),
])
sketch16.setExpression("Constraints[8]", "Params.sketch16_width")
sketch16.setExpression("Constraints[9]", "Params.sketch16_height")
pocket13 = body.newObject("PartDesign::Pocket", "Pocket012")
pocket13.Profile = sketch16
pocket13.setExpression("Length", "Params.pocket13_length")
pocket13.Reversed = True

doc.recompute()
